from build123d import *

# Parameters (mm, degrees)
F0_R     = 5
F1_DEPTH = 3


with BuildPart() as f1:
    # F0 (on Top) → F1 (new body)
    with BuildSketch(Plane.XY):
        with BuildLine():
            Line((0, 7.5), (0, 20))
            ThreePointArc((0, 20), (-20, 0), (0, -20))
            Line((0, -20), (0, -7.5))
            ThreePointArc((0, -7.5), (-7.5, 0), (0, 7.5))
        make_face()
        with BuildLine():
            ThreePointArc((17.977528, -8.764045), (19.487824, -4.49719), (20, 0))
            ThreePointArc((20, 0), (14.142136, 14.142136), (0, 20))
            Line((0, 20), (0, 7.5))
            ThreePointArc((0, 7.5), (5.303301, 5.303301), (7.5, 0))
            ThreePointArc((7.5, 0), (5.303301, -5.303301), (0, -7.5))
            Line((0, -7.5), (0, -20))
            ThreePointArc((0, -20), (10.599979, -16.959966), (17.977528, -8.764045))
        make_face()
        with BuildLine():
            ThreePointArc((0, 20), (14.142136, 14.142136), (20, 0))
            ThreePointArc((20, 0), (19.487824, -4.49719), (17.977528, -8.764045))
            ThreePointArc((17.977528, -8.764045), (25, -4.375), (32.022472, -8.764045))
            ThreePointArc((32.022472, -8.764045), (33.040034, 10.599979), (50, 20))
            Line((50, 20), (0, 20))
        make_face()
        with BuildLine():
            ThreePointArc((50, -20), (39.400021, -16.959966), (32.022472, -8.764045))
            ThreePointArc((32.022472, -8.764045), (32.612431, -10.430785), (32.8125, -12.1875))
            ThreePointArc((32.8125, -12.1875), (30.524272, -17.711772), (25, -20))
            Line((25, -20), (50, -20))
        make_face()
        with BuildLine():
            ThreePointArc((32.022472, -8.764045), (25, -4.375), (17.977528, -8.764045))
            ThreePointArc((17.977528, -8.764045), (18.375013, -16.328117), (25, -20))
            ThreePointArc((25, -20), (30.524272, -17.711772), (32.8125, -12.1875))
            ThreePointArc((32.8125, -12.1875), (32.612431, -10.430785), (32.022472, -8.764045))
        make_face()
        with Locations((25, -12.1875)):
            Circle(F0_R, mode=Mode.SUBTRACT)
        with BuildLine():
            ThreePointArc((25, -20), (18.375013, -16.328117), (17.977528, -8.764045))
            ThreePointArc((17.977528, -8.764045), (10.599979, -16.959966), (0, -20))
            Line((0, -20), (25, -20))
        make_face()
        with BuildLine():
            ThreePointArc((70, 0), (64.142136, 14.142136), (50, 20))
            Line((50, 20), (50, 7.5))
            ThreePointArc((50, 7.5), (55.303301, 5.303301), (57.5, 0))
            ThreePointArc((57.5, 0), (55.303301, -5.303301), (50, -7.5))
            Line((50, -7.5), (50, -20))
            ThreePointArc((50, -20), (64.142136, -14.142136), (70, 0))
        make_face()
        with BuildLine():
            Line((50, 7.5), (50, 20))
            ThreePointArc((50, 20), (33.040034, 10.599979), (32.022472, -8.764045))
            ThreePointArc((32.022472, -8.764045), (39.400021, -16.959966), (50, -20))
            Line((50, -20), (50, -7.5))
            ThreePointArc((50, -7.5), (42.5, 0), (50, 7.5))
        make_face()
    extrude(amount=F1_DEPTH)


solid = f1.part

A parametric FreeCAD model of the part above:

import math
import FreeCAD as App
import Part
import Sketcher

V = App.Vector

doc = App.newDocument("Part")
body = doc.addObject("PartDesign::Body", "Body")

# Sketch on XY plane
sketch1 = doc.addObject("Sketcher::SketchObject", "Sketch")
body.addObject(sketch1)
sketch1.AttachmentSupport = (doc.XY_Plane, [""])
sketch1.MapMode = "FlatFace"
sketch1.addGeometry([
    Part.ArcOfCircle(Part.Circle(V(0, 0, 0), V(0, 0, 1), 20), math.radians(90), math.radians(270)),  # 0
    Part.LineSegment(V(0, -20, 0), V(50, -20, 0)),  # 1
    Part.ArcOfCircle(Part.Circle(V(50, 0, 0), V(0, 0, 1), 20), math.radians(-90), math.radians(0)),  # 2
    Part.ArcOfCircle(Part.Circle(V(50, 0, 0), V(0, 0, 1), 20), math.radians(0), math.radians(90)),  # 3
    Part.LineSegment(V(50, 20, 0), V(0, 20, 0)),  # 4
    Part.Circle(V(25, -12, 0), V(0, 0, 1), 5),  # 5
    Part.ArcOfCircle(Part.Circle(V(0, 0, 0), V(0, 0, 1), 8), math.radians(90), math.radians(270)),  # 6
    Part.ArcOfCircle(Part.Circle(V(0, 0, 0), V(0, 0, 1), 7), math.radians(0), math.radians(90)),  # 7
    Part.ArcOfCircle(Part.Circle(V(0, 0, 0), V(0, 0, 1), 7), math.radians(-90), math.radians(0)),  # 8
    Part.ArcOfCircle(Part.Circle(V(50, 0, 0), V(0, 0, 1), 8), math.radians(90), math.radians(270)),  # 9
    Part.ArcOfCircle(Part.Circle(V(50, 0, 0), V(0, 0, 1), 7), math.radians(0), math.radians(90)),  # 10
    Part.ArcOfCircle(Part.Circle(V(50, 0, 0), V(0, 0, 1), 7), math.radians(-90), math.radians(0)),  # 11
], False)
sketch1.addConstraint([
    Sketcher.Constraint("Tangent", 0, 2, 1, 1),
    Sketcher.Constraint("Tangent", 1, 2, 2, 1),
    Sketcher.Constraint("Tangent", 2, 2, 3, 1),
    Sketcher.Constraint("Tangent", 3, 2, 4, 1),
    Sketcher.Constraint("Tangent", 4, 2, 0, 1),
    Sketcher.Constraint("Tangent", 6, 1, 7, 2),
    Sketcher.Constraint("Tangent", 7, 1, 8, 2),
    Sketcher.Constraint("Tangent", 8, 1, 6, 2),
    Sketcher.Constraint("Tangent", 9, 1, 10, 2),
    Sketcher.Constraint("Tangent", 10, 1, 11, 2),
    Sketcher.Constraint("Tangent", 11, 1, 9, 2),
    Sketcher.Constraint("Horizontal", 1),
    Sketcher.Constraint("Horizontal", 4),
    Sketcher.Constraint("Coincident", 0, 3, -1, 1),
    Sketcher.Constraint("Coincident", 6, 3, -1, 1),
    Sketcher.Constraint("Coincident", 9, 3, 2, 3),
    Sketcher.Constraint("Equal", 0, 2),
    Sketcher.Constraint("Equal", 8, 9),
    Sketcher.Constraint("PointOnObject", 2, 2, -1),
    Sketcher.Constraint("PointOnObject", 6, 1, -2),
    Sketcher.Constraint("PointOnObject", 7, 1, -1),
    Sketcher.Constraint("PointOnObject", 8, 1, -2),
    Sketcher.Constraint("PointOnObject", 10, 1, -1),
    Sketcher.Constraint("Vertical", 3, 2, 9, 1),
    Sketcher.Constraint("Vertical", 9, 1, 11, 1),
    Sketcher.Constraint("Diameter", 5, 10.0),
    Sketcher.Constraint("Radius", 0, 20.0),
    Sketcher.Constraint("Radius", 6, 7.5),
    Sketcher.Constraint("DistanceX", 1, 1, 1, 2, 50.0),
    Sketcher.Constraint("DistanceX", -1, 1, 5, 3, 25.0),
    Sketcher.Constraint("DistanceY", 5, 3, -1, 1, 12.1875),
])
pad1 = doc.addObject("PartDesign::Pad", "Pad")
body.addObject(pad1)
pad1.Profile = sketch1
pad1.Length = 3

doc.recompute()
